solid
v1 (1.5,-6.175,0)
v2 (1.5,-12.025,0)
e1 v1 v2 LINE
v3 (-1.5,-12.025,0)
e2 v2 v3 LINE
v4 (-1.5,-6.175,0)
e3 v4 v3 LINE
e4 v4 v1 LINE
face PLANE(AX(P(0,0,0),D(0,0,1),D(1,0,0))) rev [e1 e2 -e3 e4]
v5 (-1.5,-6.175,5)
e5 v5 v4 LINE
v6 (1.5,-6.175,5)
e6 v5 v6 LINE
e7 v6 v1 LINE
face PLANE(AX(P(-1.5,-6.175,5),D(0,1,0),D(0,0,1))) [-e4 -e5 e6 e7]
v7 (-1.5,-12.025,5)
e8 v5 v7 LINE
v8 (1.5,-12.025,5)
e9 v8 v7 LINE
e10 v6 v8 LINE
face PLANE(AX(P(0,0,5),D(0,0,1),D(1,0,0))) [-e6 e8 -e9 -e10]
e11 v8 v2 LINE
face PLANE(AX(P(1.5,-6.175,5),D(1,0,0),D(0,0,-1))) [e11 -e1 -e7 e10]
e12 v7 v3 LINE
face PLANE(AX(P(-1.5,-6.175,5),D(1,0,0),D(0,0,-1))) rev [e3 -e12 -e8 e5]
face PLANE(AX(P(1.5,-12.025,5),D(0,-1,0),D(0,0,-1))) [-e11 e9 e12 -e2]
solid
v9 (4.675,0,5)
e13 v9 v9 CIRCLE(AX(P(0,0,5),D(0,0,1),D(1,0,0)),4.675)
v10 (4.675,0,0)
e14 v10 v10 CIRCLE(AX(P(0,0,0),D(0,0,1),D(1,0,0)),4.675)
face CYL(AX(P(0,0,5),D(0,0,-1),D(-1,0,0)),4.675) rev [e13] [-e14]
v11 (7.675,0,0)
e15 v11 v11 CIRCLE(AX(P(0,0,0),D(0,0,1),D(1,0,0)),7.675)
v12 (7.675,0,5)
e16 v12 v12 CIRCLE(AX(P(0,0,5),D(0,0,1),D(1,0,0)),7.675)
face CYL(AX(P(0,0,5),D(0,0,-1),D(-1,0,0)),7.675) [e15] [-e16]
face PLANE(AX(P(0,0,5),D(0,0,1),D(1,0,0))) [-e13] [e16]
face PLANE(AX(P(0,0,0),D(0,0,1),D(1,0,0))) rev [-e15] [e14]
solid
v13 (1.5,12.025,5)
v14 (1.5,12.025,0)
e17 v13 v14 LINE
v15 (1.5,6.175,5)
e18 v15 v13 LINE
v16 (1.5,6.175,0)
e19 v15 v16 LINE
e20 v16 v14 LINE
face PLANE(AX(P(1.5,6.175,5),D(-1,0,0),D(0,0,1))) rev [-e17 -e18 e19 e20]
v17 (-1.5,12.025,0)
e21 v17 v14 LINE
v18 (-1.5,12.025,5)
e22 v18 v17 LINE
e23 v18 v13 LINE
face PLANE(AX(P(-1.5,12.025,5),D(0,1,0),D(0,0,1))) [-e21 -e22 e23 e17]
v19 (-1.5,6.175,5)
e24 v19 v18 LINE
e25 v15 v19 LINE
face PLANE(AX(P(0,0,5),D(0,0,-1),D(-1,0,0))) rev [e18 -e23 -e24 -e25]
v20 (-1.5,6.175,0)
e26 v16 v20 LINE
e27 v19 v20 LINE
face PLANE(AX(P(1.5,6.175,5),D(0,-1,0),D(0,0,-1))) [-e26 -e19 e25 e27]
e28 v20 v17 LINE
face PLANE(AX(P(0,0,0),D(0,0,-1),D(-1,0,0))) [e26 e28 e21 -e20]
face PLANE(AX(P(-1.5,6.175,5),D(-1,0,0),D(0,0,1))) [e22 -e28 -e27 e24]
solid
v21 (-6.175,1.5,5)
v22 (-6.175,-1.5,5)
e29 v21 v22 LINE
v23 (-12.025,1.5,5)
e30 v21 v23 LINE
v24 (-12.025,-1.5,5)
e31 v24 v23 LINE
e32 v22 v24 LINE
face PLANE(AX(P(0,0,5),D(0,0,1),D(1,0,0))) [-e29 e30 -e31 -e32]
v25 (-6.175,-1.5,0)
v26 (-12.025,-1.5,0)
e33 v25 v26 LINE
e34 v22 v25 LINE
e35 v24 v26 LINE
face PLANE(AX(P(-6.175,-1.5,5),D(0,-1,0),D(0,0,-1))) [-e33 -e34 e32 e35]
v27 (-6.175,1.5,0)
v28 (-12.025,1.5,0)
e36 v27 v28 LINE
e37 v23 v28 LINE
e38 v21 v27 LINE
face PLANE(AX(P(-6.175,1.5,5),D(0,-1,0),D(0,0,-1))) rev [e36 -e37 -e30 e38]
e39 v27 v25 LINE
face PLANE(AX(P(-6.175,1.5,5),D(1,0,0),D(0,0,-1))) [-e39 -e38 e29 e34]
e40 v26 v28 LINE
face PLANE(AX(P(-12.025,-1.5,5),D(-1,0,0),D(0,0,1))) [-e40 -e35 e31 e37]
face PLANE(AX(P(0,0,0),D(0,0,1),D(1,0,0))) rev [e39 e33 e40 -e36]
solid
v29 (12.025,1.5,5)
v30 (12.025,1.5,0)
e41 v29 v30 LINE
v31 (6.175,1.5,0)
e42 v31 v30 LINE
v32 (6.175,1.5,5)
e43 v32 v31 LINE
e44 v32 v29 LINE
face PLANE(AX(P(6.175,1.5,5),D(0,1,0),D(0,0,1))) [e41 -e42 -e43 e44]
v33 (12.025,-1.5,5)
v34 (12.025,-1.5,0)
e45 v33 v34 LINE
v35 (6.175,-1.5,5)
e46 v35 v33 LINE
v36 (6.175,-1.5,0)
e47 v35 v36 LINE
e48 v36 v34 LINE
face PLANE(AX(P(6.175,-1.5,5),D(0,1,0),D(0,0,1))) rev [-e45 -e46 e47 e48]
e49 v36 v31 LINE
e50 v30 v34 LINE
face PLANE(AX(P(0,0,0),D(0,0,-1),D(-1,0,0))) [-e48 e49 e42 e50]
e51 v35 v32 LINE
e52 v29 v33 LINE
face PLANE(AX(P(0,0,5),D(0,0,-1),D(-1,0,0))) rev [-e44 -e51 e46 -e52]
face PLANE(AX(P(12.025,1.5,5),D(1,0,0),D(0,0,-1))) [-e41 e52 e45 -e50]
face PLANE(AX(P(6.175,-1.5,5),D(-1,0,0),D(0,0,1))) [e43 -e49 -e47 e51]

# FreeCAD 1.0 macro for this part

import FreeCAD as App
import Part
import Sketcher

doc = App.newDocument("Part")
params = doc.addObject("Spreadsheet::Sheet", "Params")
for row, (alias, value) in enumerate([
    ("sketch1_diameter", "15.35 mm"),
    ("sketch1_diameter2", "9.35 mm"),
    ("pad1_length", "5 mm"),
    ("sketch2_width", "3 mm"),
    ("sketch2_height", "5.85 mm"),
    ("pad2_length", "5 mm"),
    ("sketch3_width", "3 mm"),
    ("sketch3_height", "5.85 mm"),
    ("pad3_length", "5 mm"),
    ("sketch4_height", "3 mm"),
    ("sketch4_width", "5.85 mm"),
    ("pad4_length", "5 mm"),
    ("sketch5_height", "3 mm"),
    ("sketch5_width", "5.85 mm"),
    ("pad5_length", "5 mm"),
], start=1):
    params.set(f"A{row}", alias)
    params.set(f"B{row}", "=" + value)
    params.setAlias(f"B{row}", alias)

body = doc.addObject("PartDesign::Body", "Body")

# Sketch on XY plane
sketch1 = body.newObject("Sketcher::SketchObject", "Sketch")
sketch1.AttachmentSupport = (doc.getObject("XY_Plane"), [""])
sketch1.MapMode = "FlatFace"
sketch1.addGeometry(Part.Circle(App.Vector(0, 0, 0), App.Vector(0, 0, 1), 7.7), False)
sketch1.addGeometry(Part.Circle(App.Vector(0, 0, 0), App.Vector(0, 0, 1), 4.7), False)
sketch1.addConstraint(Sketcher.Constraint("Coincident", 0, 3, -1, 1))
sketch1.addConstraint(Sketcher.Constraint("Coincident", 1, 3, -1, 1))
sketch1.addConstraint(Sketcher.Constraint("Diameter", 0, 15.35))
sketch1.addConstraint(Sketcher.Constraint("Diameter", 1, 9.35))
sketch1.setExpression("Constraints[2]", "Params.sketch1_diameter")
sketch1.setExpression("Constraints[3]", "Params.sketch1_diameter2")
pad1 = body.newObject("PartDesign::Pad", "Pad")
pad1.Profile = sketch1
pad1.setExpression("Length", "Params.pad1_length")
body2 = doc.addObject("PartDesign::Body", "Body001")

# Sketch on XY plane
sketch2 = body2.newObject("Sketcher::SketchObject", "Sketch001")
sketch2.AttachmentSupport = (doc.getObject("XY_Plane001"), [""])
sketch2.MapMode = "FlatFace"
sketch2.addGeometry(Part.LineSegment(App.Vector(-1.5, 12, 0), App.Vector(-1.5, 6.2, 0)), False)
sketch2.addGeometry(Part.LineSegment(App.Vector(-1.5, 6.2, 0), App.Vector(1.5, 6.2, 0)), False)
sketch2.addGeometry(Part.LineSegment(App.Vector(1.5, 6.2, 0), App.Vector(1.5, 12, 0)), False)
sketch2.addGeometry(Part.LineSegment(App.Vector(1.5, 12, 0), App.Vector(-1.5, 12, 0)), False)
sketch2.addConstraint(Sketcher.Constraint("Coincident", 0, 2, 1, 1))
sketch2.addConstraint(Sketcher.Constraint("Coincident", 1, 2, 2, 1))
sketch2.addConstraint(Sketcher.Constraint("Coincident", 2, 2, 3, 1))
sketch2.addConstraint(Sketcher.Constraint("Coincident", 3, 2, 0, 1))
sketch2.addConstraint(Sketcher.Constraint("Vertical", 0))
sketch2.addConstraint(Sketcher.Constraint("Horizontal", 1))
sketch2.addConstraint(Sketcher.Constraint("Vertical", 2))
sketch2.addConstraint(Sketcher.Constraint("Horizontal", 3))
sketch2.addConstraint(Sketcher.Constraint("DistanceX", 1, 1, 1, 2, 3.0))
sketch2.addConstraint(Sketcher.Constraint("DistanceY", 0, 2, 0, 1, 5.85))
sketch2.addConstraint(Sketcher.Constraint("DistanceX", 0, 2, -1, 1, 1.5))
sketch2.addConstraint(Sketcher.Constraint("DistanceY", -1, 1, 0, 2, 6.175))
sketch2.setExpression("Constraints[8]", "Params.sketch2_width")
sketch2.setExpression("Constraints[9]", "Params.sketch2_height")
pad2 = body2.newObject("PartDesign::Pad", "Pad001")
pad2.Profile = sketch2
pad2.setExpression("Length", "Params.pad2_length")
body3 = doc.addObject("PartDesign::Body", "Body002")

# Sketch on XY plane
sketch3 = body3.newObject("Sketcher::SketchObject", "Sketch002")
sketch3.AttachmentSupport = (doc.getObject("XY_Plane002"), [""])
sketch3.MapMode = "FlatFace"
sketch3.addGeometry(Part.LineSegment(App.Vector(-1.5, -6.2, 0), App.Vector(-1.5, -12, 0)), False)
sketch3.addGeometry(Part.LineSegment(App.Vector(-1.5, -12, 0), App.Vector(1.5, -12, 0)), False)
sketch3.addGeometry(Part.LineSegment(App.Vector(1.5, -12, 0), App.Vector(1.5, -6.2, 0)), False)
sketch3.addGeometry(Part.LineSegment(App.Vector(1.5, -6.2, 0), App.Vector(-1.5, -6.2, 0)), False)
sketch3.addConstraint(Sketcher.Constraint("Coincident", 0, 2, 1, 1))
sketch3.addConstraint(Sketcher.Constraint("Coincident", 1, 2, 2, 1))
sketch3.addConstraint(Sketcher.Constraint("Coincident", 2, 2, 3, 1))
sketch3.addConstraint(Sketcher.Constraint("Coincident", 3, 2, 0, 1))
sketch3.addConstraint(Sketcher.Constraint("Vertical", 0))
sketch3.addConstraint(Sketcher.Constraint("Horizontal", 1))
sketch3.addConstraint(Sketcher.Constraint("Vertical", 2))
sketch3.addConstraint(Sketcher.Constraint("Horizontal", 3))
sketch3.addConstraint(Sketcher.Constraint("DistanceX", 1, 1, 1, 2, 3.0))
sketch3.addConstraint(Sketcher.Constraint("DistanceY", 0, 2, 0, 1, 5.85))
sketch3.addConstraint(Sketcher.Constraint("DistanceX", 0, 2, -1, 1, 1.5))
sketch3.addConstraint(Sketcher.Constraint("DistanceY", 0, 2, -1, 1, 12.025))
sketch3.setExpression("Constraints[8]", "Params.sketch3_width")
sketch3.setExpression("Constraints[9]", "Params.sketch3_height")
pad3 = body3.newObject("PartDesign::Pad", "Pad002")
pad3.Profile = sketch3
pad3.setExpression("Length", "Params.pad3_length")
body4 = doc.addObject("PartDesign::Body", "Body003")

# Sketch on XY plane
sketch4 = body4.newObject("Sketcher::SketchObject", "Sketch003")
sketch4.AttachmentSupport = (doc.getObject("XY_Plane003"), [""])
sketch4.MapMode = "FlatFace"
sketch4.addGeometry(Part.LineSegment(App.Vector(6.2, 1.5, 0), App.Vector(6.2, -1.5, 0)), False)
sketch4.addGeometry(Part.LineSegment(App.Vector(6.2, -1.5, 0), App.Vector(12, -1.5, 0)), False)
sketch4.addGeometry(Part.LineSegment(App.Vector(12, -1.5, 0), App.Vector(12, 1.5, 0)), False)
sketch4.addGeometry(Part.LineSegment(App.Vector(12, 1.5, 0), App.Vector(6.2, 1.5, 0)), False)
sketch4.addConstraint(Sketcher.Constraint("Coincident", 0, 2, 1, 1))
sketch4.addConstraint(Sketcher.Constraint("Coincident", 1, 2, 2, 1))
sketch4.addConstraint(Sketcher.Constraint("Coincident", 2, 2, 3, 1))
sketch4.addConstraint(Sketcher.Constraint("Coincident", 3, 2, 0, 1))
sketch4.addConstraint(Sketcher.Constraint("Vertical", 0))
sketch4.addConstraint(Sketcher.Constraint("Horizontal", 1))
sketch4.addConstraint(Sketcher.Constraint("Vertical", 2))
sketch4.addConstraint(Sketcher.Constraint("Horizontal", 3))
sketch4.addConstraint(Sketcher.Constraint("DistanceY", 0, 2, 0, 1, 3.0))
sketch4.addConstraint(Sketcher.Constraint("DistanceX", 1, 1, 1, 2, 5.85))
sketch4.addConstraint(Sketcher.Constraint("DistanceY", 0, 2, -1, 1, 1.5))
sketch4.addConstraint(Sketcher.Constraint("DistanceX", -1, 1, 0, 2, 6.175))
sketch4.setExpression("Constraints[8]", "Params.sketch4_height")
sketch4.setExpression("Constraints[9]", "Params.sketch4_width")
pad4 = body4.newObject("PartDesign::Pad", "Pad003")
pad4.Profile = sketch4
pad4.setExpression("Length", "Params.pad4_length")
body5 = doc.addObject("PartDesign::Body", "Body004")

# Sketch on XY plane
sketch5 = body5.newObject("Sketcher::SketchObject", "Sketch004")
sketch5.AttachmentSupport = (doc.getObject("XY_Plane004"), [""])
sketch5.MapMode = "FlatFace"
sketch5.addGeometry(Part.LineSegment(App.Vector(-12, 1.5, 0), App.Vector(-12, -1.5, 0)), False)
sketch5.addGeometry(Part.LineSegment(App.Vector(-12, -1.5, 0), App.Vector(-6.2, -1.5, 0)), False)
sketch5.addGeometry(Part.LineSegment(App.Vector(-6.2, -1.5, 0), App.Vector(-6.2, 1.5, 0)), False)
sketch5.addGeometry(Part.LineSegment(App.Vector(-6.2, 1.5, 0), App.Vector(-12, 1.5, 0)), False)
sketch5.addConstraint(Sketcher.Constraint("Coincident", 0, 2, 1, 1))
sketch5.addConstraint(Sketcher.Constraint("Coincident", 1, 2, 2, 1))
sketch5.addConstraint(Sketcher.Constraint("Coincident", 2, 2, 3, 1))
sketch5.addConstraint(Sketcher.Constraint("Coincident", 3, 2, 0, 1))
sketch5.addConstraint(Sketcher.Constraint("Vertical", 0))
sketch5.addConstraint(Sketcher.Constraint("Horizontal", 1))
sketch5.addConstraint(Sketcher.Constraint("Vertical", 2))
sketch5.addConstraint(Sketcher.Constraint("Horizontal", 3))
sketch5.addConstraint(Sketcher.Constraint("DistanceY", 0, 2, 0, 1, 3.0))
sketch5.addConstraint(Sketcher.Constraint("DistanceX", 1, 1, 1, 2, 5.85))
sketch5.addConstraint(Sketcher.Constraint("DistanceY", 0, 2, -1, 1, 1.5))
sketch5.addConstraint(Sketcher.Constraint("DistanceX", 0, 2, -1, 1, 12.025))
sketch5.setExpression("Constraints[8]", "Params.sketch5_height")
sketch5.setExpression("Constraints[9]", "Params.sketch5_width")
pad5 = body5.newObject("PartDesign::Pad", "Pad004")
pad5.Profile = sketch5
pad5.setExpression("Length", "Params.pad5_length")

doc.recompute()
